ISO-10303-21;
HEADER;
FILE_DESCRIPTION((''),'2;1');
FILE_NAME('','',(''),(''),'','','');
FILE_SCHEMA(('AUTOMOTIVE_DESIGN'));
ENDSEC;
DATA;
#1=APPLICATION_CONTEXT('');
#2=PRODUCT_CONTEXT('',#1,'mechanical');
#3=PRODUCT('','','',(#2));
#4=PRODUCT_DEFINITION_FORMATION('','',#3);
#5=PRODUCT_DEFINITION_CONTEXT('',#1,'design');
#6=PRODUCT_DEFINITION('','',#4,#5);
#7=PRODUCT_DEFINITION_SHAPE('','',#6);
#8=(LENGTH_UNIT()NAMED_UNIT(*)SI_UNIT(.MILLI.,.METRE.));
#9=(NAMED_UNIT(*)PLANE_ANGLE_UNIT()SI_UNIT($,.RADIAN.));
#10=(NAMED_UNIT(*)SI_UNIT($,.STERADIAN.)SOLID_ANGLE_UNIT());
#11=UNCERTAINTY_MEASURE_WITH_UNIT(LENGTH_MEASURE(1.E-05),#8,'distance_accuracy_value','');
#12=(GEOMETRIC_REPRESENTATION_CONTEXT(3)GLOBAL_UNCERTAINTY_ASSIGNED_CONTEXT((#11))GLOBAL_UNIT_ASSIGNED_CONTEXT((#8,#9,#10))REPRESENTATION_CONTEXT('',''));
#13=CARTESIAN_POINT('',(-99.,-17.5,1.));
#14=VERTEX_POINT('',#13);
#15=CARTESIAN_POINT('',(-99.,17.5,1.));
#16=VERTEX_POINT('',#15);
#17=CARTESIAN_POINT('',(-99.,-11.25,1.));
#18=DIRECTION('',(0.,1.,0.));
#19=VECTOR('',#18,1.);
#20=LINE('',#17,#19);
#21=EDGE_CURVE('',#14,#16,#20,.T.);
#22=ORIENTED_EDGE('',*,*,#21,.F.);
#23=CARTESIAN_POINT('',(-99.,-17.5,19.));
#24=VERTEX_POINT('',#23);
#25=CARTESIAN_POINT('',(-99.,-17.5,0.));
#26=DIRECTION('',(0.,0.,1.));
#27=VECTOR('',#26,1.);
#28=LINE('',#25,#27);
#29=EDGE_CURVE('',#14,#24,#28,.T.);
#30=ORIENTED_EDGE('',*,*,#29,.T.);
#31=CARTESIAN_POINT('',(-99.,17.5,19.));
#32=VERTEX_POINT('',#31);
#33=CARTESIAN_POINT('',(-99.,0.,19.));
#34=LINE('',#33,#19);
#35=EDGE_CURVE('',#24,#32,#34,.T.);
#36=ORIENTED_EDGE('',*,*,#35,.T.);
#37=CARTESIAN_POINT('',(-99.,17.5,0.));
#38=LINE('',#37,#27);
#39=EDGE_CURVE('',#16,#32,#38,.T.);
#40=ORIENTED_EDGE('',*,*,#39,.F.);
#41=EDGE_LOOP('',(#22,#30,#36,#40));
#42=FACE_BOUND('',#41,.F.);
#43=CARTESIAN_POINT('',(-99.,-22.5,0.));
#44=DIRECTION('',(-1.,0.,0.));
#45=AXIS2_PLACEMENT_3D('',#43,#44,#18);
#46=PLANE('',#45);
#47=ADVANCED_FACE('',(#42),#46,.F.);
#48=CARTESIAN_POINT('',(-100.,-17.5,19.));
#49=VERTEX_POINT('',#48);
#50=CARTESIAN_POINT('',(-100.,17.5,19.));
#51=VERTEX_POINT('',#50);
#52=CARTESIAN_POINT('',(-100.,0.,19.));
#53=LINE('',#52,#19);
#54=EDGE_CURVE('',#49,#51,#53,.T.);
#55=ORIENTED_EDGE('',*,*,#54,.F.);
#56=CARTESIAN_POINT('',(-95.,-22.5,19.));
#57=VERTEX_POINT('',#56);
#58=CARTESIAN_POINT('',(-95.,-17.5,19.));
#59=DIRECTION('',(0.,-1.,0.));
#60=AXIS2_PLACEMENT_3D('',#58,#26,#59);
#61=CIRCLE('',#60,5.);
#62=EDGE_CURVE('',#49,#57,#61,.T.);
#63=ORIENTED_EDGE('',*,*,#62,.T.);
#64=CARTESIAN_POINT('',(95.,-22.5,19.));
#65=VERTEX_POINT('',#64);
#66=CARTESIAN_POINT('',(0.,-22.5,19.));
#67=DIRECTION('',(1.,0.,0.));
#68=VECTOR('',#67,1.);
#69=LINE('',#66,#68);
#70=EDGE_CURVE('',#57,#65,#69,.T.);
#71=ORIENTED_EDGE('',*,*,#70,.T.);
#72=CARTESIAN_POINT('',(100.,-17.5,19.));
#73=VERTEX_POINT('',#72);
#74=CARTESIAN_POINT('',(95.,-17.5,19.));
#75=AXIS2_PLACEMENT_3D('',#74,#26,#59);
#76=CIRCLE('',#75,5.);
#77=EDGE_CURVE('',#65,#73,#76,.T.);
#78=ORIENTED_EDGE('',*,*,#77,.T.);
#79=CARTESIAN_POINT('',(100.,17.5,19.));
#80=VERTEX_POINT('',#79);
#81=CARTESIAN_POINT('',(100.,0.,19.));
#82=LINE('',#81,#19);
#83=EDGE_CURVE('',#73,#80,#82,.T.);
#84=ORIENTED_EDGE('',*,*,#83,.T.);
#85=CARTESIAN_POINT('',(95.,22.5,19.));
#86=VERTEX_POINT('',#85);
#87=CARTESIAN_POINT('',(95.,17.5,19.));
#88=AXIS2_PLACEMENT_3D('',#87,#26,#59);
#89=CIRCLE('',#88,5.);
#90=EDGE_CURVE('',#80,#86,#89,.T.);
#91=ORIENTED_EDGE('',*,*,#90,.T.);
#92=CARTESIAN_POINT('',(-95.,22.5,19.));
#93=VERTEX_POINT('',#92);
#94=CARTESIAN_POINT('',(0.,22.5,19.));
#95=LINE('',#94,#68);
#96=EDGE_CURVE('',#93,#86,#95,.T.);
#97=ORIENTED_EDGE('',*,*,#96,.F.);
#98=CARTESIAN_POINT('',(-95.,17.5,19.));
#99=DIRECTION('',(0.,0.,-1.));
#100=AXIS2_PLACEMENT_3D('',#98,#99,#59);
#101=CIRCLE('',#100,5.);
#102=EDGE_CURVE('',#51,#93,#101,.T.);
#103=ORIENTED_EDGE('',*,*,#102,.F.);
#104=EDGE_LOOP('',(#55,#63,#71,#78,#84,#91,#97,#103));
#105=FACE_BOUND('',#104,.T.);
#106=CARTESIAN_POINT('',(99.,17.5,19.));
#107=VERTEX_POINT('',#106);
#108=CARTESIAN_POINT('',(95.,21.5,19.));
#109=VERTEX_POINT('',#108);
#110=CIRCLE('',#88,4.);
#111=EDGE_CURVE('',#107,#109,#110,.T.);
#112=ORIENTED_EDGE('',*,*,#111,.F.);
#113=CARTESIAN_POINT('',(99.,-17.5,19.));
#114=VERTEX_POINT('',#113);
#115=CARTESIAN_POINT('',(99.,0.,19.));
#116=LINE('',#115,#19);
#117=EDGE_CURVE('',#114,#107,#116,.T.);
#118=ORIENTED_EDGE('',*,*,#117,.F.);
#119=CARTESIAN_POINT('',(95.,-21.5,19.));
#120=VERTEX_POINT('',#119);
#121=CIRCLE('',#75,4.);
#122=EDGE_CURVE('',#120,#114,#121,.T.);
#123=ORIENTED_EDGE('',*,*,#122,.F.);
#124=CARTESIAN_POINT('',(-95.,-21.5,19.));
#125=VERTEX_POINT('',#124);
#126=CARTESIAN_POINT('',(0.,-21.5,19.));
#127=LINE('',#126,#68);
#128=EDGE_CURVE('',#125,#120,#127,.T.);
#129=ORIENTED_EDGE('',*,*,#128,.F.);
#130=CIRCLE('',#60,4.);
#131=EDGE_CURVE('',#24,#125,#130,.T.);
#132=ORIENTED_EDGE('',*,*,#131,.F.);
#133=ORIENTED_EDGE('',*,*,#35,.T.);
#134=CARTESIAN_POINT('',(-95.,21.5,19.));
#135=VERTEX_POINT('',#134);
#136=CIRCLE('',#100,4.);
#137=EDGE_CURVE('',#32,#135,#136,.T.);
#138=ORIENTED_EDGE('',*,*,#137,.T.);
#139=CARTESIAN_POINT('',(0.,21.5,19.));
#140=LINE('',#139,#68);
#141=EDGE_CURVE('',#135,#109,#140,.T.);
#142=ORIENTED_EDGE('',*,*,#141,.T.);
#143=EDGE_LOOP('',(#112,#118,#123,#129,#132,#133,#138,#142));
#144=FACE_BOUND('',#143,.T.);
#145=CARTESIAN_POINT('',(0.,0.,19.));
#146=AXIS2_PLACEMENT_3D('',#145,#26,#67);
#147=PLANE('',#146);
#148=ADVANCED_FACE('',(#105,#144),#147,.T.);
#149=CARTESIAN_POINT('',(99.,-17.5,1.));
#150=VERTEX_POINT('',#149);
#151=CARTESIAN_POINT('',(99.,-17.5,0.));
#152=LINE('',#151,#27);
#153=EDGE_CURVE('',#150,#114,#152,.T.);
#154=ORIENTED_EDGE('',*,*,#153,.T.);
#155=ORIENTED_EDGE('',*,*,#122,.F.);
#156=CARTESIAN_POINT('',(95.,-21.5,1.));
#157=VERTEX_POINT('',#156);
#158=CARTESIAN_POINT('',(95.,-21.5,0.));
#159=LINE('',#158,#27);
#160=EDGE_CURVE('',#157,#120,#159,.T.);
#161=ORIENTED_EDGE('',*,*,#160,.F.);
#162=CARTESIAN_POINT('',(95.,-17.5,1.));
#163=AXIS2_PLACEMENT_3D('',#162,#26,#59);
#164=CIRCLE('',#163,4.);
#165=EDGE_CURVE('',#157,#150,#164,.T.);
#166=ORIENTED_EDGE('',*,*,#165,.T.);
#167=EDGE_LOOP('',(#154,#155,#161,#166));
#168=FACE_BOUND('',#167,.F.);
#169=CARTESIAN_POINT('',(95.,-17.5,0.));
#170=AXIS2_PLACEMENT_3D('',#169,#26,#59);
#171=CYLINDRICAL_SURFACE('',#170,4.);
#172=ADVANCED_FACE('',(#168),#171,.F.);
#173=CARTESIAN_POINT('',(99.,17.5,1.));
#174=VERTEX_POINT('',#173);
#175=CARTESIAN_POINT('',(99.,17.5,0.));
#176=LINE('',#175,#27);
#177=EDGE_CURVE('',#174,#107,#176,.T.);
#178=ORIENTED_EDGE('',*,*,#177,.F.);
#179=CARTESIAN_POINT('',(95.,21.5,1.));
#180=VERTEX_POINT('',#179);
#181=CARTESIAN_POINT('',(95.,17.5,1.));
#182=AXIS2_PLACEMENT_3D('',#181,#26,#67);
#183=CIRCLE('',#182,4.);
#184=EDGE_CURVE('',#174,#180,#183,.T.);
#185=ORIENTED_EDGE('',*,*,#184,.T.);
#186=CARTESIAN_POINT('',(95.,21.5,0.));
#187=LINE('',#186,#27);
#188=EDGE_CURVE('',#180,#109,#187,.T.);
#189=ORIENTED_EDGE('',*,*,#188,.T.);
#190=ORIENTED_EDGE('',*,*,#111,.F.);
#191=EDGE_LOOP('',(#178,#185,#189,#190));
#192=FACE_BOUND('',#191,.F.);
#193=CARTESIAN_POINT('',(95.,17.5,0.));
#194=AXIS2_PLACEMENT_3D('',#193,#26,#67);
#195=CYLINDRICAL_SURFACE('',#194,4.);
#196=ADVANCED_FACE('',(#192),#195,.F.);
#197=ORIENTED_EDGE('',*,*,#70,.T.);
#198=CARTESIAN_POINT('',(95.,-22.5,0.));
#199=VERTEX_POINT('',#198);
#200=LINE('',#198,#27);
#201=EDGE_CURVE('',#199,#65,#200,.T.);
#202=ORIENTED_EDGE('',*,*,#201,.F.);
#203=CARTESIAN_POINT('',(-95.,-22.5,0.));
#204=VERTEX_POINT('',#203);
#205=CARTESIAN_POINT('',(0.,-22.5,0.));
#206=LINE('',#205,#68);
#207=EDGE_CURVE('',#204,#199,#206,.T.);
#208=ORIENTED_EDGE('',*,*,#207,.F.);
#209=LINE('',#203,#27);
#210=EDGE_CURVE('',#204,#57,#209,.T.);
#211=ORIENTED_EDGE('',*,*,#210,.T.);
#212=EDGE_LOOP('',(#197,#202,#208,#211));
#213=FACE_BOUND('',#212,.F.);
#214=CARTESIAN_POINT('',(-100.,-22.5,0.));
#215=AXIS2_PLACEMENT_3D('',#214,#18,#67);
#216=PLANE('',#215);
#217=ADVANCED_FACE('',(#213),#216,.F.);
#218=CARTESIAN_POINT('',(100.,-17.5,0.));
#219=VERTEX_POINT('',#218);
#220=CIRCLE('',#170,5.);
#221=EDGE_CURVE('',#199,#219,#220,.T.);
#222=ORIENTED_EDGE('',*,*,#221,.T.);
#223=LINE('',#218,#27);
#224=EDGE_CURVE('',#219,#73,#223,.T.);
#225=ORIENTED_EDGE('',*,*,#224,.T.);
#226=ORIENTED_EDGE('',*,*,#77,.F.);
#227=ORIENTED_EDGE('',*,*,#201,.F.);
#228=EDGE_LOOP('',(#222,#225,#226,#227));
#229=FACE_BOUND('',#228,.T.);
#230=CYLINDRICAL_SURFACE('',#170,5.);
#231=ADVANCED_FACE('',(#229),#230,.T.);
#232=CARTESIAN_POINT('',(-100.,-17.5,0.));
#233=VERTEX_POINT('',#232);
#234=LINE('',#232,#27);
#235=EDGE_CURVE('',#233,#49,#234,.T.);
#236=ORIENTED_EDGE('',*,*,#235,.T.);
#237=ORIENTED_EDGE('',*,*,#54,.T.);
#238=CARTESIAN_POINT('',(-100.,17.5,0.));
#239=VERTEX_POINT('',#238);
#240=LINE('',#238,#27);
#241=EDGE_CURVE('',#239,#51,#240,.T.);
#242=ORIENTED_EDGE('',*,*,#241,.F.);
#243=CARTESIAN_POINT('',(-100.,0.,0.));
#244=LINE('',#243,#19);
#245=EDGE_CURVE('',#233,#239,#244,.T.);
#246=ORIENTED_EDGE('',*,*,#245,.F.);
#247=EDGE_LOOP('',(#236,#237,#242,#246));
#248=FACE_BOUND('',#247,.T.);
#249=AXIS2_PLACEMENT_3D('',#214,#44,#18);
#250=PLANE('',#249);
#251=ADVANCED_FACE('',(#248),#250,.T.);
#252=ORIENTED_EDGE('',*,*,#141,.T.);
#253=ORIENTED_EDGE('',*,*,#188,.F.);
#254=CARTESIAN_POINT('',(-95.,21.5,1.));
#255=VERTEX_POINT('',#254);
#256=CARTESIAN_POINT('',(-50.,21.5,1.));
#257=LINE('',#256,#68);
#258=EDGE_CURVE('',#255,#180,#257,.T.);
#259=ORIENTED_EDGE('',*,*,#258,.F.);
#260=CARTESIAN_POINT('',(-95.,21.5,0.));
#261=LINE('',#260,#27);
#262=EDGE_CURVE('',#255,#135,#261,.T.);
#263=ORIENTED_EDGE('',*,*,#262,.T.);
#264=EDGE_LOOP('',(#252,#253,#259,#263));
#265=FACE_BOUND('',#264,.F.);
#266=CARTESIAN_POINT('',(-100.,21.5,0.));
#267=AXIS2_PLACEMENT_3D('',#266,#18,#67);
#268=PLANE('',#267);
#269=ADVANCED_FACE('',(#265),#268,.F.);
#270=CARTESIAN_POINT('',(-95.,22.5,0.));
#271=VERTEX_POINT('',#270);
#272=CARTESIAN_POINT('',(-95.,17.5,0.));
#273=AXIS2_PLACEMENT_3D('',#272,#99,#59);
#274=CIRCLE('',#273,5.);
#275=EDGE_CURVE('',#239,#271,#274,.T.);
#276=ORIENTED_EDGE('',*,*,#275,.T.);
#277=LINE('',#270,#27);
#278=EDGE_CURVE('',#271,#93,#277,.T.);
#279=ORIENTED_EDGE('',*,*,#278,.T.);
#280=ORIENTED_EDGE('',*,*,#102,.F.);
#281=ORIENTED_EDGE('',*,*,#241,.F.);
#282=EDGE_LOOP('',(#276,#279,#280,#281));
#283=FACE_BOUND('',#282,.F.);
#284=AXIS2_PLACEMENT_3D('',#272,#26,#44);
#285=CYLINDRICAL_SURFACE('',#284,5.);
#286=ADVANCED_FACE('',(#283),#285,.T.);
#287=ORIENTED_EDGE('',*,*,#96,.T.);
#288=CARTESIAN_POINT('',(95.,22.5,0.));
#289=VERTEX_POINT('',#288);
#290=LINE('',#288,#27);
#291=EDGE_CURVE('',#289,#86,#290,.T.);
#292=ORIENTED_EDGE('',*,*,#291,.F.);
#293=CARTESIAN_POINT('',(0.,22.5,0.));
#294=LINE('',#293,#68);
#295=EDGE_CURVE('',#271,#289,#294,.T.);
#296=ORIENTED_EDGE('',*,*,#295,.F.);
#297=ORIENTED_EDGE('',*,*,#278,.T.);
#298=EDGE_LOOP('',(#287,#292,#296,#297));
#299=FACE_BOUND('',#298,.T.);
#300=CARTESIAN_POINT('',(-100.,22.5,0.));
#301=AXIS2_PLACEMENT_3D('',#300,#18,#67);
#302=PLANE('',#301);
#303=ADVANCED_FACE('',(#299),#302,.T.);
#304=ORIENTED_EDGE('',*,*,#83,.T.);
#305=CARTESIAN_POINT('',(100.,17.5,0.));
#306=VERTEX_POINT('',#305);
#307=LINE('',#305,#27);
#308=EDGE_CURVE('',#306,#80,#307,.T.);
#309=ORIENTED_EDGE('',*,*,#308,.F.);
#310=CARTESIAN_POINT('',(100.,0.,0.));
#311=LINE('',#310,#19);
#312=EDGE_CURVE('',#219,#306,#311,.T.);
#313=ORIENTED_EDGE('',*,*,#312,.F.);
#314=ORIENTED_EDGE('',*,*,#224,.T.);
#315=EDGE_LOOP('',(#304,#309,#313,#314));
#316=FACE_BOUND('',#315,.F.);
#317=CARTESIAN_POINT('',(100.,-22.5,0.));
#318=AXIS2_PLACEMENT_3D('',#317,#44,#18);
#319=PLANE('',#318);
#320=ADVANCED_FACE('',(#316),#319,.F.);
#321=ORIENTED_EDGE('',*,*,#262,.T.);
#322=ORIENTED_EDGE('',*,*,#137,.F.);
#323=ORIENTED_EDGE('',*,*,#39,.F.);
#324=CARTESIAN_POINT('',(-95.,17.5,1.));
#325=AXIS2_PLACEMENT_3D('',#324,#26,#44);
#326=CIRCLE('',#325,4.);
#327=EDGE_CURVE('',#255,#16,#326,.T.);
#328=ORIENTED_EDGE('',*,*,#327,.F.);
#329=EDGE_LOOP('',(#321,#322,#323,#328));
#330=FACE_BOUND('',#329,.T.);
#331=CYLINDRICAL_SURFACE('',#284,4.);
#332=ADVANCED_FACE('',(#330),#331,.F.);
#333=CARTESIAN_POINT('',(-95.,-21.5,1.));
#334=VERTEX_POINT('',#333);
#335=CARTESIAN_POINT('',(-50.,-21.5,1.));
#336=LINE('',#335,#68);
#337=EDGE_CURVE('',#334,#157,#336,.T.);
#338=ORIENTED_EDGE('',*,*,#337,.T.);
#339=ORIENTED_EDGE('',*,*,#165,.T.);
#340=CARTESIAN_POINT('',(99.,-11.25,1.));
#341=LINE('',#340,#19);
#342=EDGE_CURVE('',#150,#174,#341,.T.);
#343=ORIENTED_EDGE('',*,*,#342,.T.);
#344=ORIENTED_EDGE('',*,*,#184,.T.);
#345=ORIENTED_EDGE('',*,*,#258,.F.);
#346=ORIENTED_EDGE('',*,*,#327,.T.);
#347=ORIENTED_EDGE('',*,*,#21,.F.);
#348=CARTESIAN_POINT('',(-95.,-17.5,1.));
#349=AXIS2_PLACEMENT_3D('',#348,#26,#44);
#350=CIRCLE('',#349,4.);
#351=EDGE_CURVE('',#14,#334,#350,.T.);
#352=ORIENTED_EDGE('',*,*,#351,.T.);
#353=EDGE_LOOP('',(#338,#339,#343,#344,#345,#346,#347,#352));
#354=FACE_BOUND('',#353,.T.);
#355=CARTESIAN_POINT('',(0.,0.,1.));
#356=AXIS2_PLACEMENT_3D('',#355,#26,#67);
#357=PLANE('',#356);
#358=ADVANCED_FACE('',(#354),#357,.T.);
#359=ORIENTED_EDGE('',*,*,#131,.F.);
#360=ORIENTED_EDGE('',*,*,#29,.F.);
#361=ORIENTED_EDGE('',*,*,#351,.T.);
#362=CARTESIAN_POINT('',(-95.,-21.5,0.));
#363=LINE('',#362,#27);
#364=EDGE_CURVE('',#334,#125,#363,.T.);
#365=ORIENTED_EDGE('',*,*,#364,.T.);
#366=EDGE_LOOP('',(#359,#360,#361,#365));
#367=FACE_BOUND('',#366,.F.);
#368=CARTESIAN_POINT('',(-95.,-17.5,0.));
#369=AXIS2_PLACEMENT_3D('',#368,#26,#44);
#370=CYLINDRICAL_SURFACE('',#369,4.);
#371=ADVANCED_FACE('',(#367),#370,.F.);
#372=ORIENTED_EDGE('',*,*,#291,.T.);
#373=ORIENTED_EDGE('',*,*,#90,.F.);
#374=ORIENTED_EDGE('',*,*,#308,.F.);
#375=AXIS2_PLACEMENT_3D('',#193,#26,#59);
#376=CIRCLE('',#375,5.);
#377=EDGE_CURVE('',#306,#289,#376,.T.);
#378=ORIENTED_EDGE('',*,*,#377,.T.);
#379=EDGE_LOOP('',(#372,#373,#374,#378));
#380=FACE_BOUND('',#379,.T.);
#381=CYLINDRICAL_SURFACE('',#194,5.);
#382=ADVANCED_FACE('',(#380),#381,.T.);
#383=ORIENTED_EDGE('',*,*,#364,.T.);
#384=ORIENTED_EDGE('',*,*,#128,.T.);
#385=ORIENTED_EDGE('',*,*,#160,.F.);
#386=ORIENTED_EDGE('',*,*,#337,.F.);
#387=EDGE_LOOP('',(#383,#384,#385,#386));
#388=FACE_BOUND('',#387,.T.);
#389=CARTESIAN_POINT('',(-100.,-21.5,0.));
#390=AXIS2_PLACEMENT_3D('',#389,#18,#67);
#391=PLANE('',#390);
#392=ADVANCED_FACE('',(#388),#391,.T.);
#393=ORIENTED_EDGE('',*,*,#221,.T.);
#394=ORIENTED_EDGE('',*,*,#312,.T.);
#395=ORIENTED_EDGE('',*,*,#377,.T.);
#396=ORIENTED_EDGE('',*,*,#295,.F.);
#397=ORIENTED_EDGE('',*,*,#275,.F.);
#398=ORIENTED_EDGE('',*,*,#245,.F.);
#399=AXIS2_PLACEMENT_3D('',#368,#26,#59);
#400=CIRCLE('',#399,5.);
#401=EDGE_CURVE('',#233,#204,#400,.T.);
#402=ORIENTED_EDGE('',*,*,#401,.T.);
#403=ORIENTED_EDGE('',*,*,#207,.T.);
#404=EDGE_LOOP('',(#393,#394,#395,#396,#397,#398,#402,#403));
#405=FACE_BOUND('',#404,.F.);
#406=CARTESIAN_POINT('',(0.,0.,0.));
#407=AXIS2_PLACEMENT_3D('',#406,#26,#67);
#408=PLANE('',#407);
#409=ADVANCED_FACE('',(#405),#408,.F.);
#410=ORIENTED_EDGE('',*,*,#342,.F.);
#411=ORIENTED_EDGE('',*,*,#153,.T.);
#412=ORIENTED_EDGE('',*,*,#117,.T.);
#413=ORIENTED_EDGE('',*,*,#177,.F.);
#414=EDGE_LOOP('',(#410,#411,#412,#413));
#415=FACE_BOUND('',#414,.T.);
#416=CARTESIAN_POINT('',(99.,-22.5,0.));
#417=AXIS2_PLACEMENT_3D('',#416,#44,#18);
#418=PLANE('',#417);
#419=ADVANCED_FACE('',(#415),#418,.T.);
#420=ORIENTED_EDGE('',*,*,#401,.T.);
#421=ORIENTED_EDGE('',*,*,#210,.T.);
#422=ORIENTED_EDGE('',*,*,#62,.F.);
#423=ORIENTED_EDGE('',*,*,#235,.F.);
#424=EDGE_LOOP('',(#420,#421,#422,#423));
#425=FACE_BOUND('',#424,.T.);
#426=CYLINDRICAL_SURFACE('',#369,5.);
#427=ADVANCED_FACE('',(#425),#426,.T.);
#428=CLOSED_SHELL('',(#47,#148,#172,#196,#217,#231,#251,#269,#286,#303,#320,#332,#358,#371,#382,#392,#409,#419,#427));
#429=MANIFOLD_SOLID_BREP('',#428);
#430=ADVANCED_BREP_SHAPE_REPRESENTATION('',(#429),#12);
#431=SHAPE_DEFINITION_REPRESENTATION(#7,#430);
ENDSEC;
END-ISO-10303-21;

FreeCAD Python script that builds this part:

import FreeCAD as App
import Part
import Sketcher

V = App.Vector
Q = App.Units.Quantity


def edges_at(feature, points):
    """Names of the edges that pass closest to the given points."""
    edges = feature.Shape.Edges
    near = lambda p: min(range(len(edges)), key=lambda i: edges[i].distToShape(Part.Vertex(*p))[0])
    return sorted({f"Edge{near(p) + 1}" for p in points})


def faces_at(feature, points):
    """Names of the faces that lie closest to the given points."""
    faces = feature.Shape.Faces
    near = lambda p: min(range(len(faces)), key=lambda i: faces[i].distToShape(Part.Vertex(*p))[0])
    return sorted({f"Face{near(p) + 1}" for p in points})

doc = App.newDocument("Part")
body = doc.addObject("PartDesign::Body", "Body")

# Sketch on XY plane
sketch1 = body.newObject("Sketcher::SketchObject", "Sketch")
sketch1.AttachmentSupport = (doc.getObject("XY_Plane"), [""])
sketch1.MapMode = "FlatFace"
sketch1.addGeometry([
    Part.LineSegment(V(-100, 22, 0), V(-100, -22, 0)),
    Part.LineSegment(V(-100, -22, 0), V(100, -22, 0)),
    Part.LineSegment(V(100, -22, 0), V(100, 22, 0)),
    Part.LineSegment(V(100, 22, 0), V(-100, 22, 0)),
], False)
sketch1.addConstraint([
    Sketcher.Constraint("Coincident", 0, 2, 1, 1),
    Sketcher.Constraint("Coincident", 1, 2, 2, 1),
    Sketcher.Constraint("Coincident", 2, 2, 3, 1),
    Sketcher.Constraint("Coincident", 3, 2, 0, 1),
    Sketcher.Constraint("Vertical", 0),
    Sketcher.Constraint("Horizontal", 1),
    Sketcher.Constraint("Vertical", 2),
    Sketcher.Constraint("Horizontal", 3),
    Sketcher.Constraint("Symmetric", 0, 2, 2, 2, -1, 1),
    Sketcher.Constraint("DistanceX", 1, 1, 1, 2, Q("200 mm")),
    Sketcher.Constraint("DistanceY", 0, 2, 0, 1, Q("45 mm")),
])
pad1 = body.newObject("PartDesign::Pad", "Pad")
pad1.Profile = sketch1
pad1.Length = 19
doc.recompute()

fillet = body.newObject("PartDesign::Fillet", "Fillet")
fillet.Base = (pad1, edges_at(pad1, [
    (-100, -22.5, 9.5),
    (-100, 22.5, 9.5),
    (100, -22.5, 9.5),
    (100, 22.5, 9.5),
]))
fillet.Radius = 5
doc.recompute()

thickness = body.newObject("PartDesign::Thickness", "Thickness")
thickness.Base = (fillet, faces_at(fillet, [(0, 0, 19)]))
thickness.Value = 1
thickness.Reversed = True
thickness.Join = "Arc"

doc.recompute()
